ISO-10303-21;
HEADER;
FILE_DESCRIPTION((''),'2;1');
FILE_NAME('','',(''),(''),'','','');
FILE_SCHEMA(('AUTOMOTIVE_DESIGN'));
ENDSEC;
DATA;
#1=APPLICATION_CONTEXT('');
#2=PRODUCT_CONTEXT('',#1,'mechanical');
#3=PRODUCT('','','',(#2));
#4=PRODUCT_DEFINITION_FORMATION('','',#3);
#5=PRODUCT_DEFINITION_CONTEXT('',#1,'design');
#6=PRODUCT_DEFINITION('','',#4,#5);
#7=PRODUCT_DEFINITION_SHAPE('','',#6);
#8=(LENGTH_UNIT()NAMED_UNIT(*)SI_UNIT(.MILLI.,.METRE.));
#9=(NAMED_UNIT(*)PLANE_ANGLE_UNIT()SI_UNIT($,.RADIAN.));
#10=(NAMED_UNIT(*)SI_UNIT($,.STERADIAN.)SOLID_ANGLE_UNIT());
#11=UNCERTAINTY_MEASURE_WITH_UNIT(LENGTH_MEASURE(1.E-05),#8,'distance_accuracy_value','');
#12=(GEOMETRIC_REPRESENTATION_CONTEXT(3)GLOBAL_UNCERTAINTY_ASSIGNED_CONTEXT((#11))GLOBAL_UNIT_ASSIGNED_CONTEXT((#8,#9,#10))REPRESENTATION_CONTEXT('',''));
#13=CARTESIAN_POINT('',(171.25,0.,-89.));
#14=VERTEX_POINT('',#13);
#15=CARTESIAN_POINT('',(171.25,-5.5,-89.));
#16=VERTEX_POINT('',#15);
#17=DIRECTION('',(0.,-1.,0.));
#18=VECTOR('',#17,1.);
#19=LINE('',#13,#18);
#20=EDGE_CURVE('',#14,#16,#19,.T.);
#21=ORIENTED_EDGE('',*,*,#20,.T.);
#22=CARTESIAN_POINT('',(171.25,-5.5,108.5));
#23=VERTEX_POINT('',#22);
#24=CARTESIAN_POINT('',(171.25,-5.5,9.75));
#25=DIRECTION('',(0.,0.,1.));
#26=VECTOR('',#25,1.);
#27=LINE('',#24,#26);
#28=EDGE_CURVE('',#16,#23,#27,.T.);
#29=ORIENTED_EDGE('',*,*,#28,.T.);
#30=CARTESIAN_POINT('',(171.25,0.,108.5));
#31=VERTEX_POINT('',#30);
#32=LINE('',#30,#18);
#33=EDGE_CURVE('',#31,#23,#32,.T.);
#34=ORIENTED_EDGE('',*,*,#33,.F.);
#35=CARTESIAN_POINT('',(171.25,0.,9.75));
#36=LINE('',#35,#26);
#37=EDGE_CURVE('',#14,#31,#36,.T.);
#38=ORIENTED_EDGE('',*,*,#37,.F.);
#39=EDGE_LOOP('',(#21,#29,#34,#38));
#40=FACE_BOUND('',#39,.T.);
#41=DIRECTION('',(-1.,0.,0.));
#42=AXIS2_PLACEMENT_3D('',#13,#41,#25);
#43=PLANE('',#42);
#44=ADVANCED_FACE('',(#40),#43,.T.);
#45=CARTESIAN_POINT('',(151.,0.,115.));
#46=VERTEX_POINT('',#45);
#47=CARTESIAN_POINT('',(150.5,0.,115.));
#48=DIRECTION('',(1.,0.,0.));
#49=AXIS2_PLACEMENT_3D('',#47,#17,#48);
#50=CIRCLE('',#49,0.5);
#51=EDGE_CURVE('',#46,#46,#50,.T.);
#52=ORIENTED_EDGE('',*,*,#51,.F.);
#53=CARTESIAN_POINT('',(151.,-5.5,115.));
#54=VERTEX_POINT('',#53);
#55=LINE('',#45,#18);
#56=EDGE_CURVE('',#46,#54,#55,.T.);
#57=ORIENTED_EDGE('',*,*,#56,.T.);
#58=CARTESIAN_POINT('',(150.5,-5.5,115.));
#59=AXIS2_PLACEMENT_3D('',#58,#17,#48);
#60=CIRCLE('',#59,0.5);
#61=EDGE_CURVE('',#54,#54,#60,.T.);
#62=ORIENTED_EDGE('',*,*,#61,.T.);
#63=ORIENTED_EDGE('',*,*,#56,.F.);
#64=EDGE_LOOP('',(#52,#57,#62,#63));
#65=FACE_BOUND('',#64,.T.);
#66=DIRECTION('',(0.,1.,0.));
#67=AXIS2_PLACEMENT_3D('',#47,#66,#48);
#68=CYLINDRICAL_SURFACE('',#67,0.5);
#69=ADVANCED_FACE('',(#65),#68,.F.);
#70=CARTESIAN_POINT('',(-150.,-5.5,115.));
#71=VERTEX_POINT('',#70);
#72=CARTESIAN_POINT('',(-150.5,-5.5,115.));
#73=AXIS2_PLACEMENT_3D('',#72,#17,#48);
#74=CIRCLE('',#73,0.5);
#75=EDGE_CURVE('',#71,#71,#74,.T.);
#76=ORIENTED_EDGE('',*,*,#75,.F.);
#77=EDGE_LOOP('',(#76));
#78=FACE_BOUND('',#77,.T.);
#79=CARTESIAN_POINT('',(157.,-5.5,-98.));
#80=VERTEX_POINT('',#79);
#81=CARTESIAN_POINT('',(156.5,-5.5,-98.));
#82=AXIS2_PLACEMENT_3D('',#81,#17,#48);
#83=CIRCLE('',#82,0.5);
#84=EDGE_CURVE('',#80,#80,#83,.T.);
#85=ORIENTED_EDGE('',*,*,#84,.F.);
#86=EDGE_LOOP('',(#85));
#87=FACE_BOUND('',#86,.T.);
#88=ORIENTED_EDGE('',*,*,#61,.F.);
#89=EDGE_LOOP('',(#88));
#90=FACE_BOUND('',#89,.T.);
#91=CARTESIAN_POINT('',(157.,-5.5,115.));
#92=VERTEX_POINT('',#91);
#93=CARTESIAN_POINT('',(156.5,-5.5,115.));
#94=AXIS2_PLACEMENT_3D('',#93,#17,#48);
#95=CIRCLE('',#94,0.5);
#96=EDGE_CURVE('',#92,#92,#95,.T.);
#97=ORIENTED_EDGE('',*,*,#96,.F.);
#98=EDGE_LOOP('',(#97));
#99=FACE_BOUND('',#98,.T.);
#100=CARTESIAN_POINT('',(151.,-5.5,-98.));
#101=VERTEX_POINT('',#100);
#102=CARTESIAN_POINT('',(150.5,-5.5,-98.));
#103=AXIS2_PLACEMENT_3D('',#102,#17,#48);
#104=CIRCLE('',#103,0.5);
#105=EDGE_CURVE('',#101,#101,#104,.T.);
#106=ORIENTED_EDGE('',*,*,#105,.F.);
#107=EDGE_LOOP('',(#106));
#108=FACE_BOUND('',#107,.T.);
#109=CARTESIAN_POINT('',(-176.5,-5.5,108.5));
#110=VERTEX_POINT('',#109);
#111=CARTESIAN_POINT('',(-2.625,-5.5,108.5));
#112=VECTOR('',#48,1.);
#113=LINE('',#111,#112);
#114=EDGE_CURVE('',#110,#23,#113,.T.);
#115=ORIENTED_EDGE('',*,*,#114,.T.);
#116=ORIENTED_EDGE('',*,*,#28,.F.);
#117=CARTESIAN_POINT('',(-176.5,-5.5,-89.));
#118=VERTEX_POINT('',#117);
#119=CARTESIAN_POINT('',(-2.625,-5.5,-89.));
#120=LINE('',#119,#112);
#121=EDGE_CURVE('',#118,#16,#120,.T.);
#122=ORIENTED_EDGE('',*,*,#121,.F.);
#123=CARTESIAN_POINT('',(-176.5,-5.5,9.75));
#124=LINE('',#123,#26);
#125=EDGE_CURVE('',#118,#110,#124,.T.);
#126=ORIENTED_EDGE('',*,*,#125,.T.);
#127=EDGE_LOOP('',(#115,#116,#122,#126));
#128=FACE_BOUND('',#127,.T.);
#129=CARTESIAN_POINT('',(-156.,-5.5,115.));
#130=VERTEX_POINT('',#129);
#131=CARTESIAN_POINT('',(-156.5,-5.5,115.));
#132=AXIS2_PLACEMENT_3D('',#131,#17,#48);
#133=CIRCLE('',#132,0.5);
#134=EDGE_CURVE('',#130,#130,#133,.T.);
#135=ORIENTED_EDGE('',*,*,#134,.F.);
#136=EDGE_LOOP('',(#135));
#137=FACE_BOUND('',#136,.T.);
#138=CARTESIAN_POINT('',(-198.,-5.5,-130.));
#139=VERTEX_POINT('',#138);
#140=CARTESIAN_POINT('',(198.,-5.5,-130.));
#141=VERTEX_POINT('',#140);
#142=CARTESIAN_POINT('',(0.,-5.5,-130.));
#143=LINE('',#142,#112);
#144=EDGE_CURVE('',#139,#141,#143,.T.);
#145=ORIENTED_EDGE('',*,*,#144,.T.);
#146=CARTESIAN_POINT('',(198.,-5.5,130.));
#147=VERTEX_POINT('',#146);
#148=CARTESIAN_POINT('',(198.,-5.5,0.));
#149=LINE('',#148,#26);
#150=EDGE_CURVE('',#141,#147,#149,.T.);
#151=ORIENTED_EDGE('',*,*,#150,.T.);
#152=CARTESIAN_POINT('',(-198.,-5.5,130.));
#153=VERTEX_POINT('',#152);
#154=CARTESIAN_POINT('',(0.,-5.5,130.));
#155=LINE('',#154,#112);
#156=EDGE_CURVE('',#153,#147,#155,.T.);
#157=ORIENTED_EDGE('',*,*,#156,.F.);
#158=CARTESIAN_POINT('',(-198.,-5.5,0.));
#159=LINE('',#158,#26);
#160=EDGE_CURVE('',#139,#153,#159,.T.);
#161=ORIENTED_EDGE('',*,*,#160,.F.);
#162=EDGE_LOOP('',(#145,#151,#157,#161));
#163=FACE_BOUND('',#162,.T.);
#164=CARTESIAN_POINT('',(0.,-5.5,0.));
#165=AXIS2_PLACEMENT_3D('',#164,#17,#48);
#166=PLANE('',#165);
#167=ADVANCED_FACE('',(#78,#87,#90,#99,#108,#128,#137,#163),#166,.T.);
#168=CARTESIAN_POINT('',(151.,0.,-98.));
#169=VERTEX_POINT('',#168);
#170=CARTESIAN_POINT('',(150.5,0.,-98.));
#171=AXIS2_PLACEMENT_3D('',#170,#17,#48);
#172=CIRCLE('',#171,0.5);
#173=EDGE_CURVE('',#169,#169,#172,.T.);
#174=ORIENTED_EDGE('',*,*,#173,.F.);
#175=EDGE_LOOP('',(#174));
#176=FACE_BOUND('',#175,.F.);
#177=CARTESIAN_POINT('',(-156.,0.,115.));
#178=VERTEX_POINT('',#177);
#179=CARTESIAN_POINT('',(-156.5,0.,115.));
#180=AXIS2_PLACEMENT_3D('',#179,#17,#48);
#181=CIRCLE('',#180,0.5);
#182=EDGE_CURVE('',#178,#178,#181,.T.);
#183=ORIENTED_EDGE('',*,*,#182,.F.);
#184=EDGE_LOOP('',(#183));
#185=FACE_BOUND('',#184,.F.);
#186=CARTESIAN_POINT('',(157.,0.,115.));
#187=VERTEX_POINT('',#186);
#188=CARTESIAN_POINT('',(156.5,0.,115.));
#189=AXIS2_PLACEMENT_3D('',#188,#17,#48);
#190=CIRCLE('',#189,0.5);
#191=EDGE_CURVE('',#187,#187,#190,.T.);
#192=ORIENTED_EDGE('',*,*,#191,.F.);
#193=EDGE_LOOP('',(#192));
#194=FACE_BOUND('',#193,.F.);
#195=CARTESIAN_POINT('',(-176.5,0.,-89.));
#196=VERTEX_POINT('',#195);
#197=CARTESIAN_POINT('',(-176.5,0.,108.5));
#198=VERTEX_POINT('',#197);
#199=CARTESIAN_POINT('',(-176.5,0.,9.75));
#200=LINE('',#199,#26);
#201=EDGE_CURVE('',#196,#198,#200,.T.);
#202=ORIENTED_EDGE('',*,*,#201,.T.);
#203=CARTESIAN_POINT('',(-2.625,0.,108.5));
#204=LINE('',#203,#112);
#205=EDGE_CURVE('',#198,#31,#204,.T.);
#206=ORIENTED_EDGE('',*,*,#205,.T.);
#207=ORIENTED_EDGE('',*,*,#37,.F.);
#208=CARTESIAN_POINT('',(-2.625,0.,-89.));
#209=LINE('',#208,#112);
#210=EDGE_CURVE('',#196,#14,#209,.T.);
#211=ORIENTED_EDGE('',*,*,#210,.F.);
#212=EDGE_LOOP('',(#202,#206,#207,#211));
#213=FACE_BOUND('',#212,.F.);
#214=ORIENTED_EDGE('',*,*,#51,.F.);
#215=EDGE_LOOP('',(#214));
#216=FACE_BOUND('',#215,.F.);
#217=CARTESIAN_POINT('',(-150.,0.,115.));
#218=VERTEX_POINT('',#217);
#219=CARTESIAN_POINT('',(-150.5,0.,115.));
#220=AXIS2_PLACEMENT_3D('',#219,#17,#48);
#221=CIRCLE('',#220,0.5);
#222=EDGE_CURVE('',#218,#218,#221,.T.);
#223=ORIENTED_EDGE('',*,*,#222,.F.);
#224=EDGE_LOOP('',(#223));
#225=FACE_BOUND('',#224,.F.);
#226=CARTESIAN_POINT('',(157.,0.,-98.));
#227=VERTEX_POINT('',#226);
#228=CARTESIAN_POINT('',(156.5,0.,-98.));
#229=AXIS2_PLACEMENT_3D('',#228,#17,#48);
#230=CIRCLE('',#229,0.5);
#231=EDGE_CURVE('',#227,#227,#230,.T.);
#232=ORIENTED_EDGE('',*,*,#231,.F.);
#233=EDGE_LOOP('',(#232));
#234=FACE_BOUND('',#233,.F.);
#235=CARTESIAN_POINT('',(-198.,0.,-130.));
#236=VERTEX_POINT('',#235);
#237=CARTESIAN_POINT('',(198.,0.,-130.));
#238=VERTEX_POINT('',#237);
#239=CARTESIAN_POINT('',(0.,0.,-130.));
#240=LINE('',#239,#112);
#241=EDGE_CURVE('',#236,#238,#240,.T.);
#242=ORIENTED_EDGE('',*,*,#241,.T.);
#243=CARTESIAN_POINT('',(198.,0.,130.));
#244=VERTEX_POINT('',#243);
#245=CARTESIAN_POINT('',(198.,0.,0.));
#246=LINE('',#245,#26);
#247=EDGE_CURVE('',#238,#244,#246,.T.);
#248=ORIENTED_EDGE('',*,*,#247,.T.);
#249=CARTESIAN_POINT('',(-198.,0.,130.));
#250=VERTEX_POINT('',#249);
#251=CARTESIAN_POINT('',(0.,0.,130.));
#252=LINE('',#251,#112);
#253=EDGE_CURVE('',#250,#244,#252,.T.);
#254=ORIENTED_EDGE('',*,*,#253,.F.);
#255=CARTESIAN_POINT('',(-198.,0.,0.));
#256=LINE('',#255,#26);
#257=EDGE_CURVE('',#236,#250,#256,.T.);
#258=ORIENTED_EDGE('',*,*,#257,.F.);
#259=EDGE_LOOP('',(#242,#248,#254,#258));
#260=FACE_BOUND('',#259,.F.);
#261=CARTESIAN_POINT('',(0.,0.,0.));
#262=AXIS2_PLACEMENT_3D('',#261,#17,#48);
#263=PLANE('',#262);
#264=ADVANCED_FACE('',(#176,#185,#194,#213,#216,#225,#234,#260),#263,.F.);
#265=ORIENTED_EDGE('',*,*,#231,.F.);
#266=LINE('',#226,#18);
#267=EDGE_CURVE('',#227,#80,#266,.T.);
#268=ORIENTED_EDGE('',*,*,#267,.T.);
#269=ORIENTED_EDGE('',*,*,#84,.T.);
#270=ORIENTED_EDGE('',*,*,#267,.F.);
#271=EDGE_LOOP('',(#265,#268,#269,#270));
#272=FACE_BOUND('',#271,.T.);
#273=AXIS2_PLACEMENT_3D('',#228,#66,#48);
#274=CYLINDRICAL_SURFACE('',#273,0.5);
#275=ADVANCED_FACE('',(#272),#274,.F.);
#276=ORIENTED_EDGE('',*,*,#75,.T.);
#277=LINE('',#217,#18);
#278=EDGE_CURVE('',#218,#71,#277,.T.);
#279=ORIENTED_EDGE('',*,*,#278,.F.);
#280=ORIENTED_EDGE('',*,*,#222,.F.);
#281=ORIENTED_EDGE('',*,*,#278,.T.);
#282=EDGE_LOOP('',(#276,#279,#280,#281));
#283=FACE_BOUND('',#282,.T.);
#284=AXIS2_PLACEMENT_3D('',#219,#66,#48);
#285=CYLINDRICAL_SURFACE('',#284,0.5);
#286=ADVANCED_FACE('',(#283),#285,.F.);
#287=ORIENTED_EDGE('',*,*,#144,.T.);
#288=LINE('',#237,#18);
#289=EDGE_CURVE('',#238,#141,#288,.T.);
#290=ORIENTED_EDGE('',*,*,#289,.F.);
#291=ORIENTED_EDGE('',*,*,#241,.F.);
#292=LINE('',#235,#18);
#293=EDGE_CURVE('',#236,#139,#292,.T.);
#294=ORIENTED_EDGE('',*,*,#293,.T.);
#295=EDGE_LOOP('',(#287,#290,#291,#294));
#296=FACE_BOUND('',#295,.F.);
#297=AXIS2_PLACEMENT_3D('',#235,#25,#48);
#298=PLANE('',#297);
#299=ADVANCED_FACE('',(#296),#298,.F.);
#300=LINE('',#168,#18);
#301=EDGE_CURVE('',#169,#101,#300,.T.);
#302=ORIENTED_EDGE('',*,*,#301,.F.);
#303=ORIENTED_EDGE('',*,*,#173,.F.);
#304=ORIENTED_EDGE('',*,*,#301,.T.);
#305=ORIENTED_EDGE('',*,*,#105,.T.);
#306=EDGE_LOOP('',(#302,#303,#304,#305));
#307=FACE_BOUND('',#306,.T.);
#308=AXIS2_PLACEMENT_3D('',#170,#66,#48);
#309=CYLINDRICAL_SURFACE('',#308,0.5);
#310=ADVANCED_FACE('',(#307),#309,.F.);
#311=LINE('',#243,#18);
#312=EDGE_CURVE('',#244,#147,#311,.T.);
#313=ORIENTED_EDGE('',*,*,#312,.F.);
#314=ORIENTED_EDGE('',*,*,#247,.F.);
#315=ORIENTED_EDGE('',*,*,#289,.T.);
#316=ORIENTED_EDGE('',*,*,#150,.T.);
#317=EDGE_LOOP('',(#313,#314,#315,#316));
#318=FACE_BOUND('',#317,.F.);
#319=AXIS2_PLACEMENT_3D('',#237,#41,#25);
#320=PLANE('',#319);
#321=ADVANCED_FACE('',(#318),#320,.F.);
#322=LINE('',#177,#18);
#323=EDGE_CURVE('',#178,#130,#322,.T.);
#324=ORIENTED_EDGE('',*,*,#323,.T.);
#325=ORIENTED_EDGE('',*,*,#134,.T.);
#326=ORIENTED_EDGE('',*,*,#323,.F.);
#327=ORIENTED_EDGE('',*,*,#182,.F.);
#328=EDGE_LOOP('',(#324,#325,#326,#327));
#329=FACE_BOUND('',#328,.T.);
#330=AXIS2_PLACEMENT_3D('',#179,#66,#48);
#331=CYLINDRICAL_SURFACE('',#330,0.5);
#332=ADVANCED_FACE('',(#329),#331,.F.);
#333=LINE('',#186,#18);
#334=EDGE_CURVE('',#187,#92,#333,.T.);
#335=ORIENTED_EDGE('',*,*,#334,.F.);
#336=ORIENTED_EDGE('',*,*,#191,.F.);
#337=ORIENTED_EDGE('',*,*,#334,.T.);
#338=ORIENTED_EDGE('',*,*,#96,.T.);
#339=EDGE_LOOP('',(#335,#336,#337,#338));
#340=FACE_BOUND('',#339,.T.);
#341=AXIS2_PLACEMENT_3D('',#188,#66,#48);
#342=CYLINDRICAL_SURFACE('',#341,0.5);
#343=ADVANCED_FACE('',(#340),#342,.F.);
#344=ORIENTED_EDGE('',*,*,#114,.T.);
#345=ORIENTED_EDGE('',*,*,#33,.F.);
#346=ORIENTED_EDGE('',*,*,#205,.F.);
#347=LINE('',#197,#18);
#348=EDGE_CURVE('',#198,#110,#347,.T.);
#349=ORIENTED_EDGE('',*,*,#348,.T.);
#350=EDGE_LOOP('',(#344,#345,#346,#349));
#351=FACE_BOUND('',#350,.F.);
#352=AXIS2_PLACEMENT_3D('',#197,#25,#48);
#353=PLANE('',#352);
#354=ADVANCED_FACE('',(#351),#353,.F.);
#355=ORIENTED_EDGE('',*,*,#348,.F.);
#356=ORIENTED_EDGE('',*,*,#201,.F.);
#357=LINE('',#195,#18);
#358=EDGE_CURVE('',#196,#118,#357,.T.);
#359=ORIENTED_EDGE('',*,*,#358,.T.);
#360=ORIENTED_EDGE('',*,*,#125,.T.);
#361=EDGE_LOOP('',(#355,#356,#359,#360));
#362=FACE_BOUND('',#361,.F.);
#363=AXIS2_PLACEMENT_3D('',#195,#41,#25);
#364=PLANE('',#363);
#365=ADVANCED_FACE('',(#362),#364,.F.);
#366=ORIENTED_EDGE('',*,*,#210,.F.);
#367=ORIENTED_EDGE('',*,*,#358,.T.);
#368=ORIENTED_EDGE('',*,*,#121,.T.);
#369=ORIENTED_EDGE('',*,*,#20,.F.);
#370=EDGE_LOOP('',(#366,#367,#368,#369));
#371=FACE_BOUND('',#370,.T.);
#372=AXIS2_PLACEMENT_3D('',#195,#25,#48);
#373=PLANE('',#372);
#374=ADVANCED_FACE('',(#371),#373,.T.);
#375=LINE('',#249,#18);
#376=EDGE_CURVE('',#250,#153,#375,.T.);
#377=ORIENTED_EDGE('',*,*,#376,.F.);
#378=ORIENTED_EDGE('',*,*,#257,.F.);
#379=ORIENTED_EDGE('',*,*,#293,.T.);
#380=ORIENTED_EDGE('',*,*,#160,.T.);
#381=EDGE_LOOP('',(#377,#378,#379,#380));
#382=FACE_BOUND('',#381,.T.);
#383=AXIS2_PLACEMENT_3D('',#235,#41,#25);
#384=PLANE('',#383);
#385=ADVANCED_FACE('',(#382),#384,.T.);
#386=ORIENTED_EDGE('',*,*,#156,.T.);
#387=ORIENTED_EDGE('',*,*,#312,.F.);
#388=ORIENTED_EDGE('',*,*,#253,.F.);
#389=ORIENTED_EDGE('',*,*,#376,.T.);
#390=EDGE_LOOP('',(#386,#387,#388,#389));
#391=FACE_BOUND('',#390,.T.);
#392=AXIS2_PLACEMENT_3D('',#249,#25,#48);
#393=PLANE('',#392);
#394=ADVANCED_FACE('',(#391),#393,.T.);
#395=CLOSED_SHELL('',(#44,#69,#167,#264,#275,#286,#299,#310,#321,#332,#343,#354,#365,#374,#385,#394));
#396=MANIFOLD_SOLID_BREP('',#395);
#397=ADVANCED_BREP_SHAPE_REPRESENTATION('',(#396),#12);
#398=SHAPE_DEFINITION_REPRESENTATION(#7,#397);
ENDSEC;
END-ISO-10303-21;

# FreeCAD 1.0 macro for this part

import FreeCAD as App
import Part
import Sketcher
from FreeCAD import Vector
Q = App.Units.Quantity

doc = App.newDocument("Part")
params = doc.addObject("Spreadsheet::Sheet", "Params")
for row, (alias, value) in enumerate([
    ("sketch1_diameter", "1 mm"),
    ("sketch1_width", "396 mm"),
    ("sketch1_height", "260 mm"),
    ("sketch1_height2", "197.5 mm"),
    ("sketch1_width2", "347.75 mm"),
    ("pad1_length", "5.5 mm"),
], start=1):
    params.set(f"A{row}", alias)
    params.set(f"B{row}", "=" + value)
    params.setAlias(f"B{row}", alias)

body = doc.addObject("PartDesign::Body", "Body")

# Sketch on XZ plane
sketch1 = body.newObject("Sketcher::SketchObject", "Sketch")
sketch1.AttachmentSupport = (doc.getObject("XZ_Plane"), [""])
sketch1.MapMode = "FlatFace"
sketch1.addGeometry(Part.LineSegment(Vector(-198, 130, 0), Vector(-198, -130, 0)), False)
sketch1.addGeometry(Part.LineSegment(Vector(-198, -130, 0), Vector(198, -130, 0)), False)
sketch1.addGeometry(Part.LineSegment(Vector(198, -130, 0), Vector(198, 130, 0)), False)
sketch1.addGeometry(Part.LineSegment(Vector(198, 130, 0), Vector(-198, 130, 0)), False)
sketch1.addGeometry(Part.Circle(Vector(150.5, -98, 0), Vector(0, 0, 1), 0.5), False)
sketch1.addGeometry(Part.Circle(Vector(156.5, -98, 0), Vector(0, 0, 1), 0.5), False)
sketch1.addGeometry(Part.Circle(Vector(-156.5, 115, 0), Vector(0, 0, 1), 0.5), False)
sketch1.addGeometry(Part.Circle(Vector(-150.5, 115, 0), Vector(0, 0, 1), 0.5), False)
sketch1.addGeometry(Part.LineSegment(Vector(171.2, -89, 0), Vector(-176.5, -89, 0)), False)
sketch1.addGeometry(Part.LineSegment(Vector(-176.5, -89, 0), Vector(-176.5, 108.5, 0)), False)
sketch1.addGeometry(Part.LineSegment(Vector(-176.5, 108.5, 0), Vector(171.2, 108.5, 0)), False)
sketch1.addGeometry(Part.LineSegment(Vector(171.2, 108.5, 0), Vector(171.2, -89, 0)), False)
sketch1.addGeometry(Part.Circle(Vector(150.5, 115, 0), Vector(0, 0, 1), 0.5), False)
sketch1.addGeometry(Part.Circle(Vector(156.5, 115, 0), Vector(0, 0, 1), 0.5), False)
sketch1.addConstraint(Sketcher.Constraint("Coincident", 0, 2, 1, 1))
sketch1.addConstraint(Sketcher.Constraint("Coincident", 1, 2, 2, 1))
sketch1.addConstraint(Sketcher.Constraint("Coincident", 2, 2, 3, 1))
sketch1.addConstraint(Sketcher.Constraint("Coincident", 3, 2, 0, 1))
sketch1.addConstraint(Sketcher.Constraint("Coincident", 8, 2, 9, 1))
sketch1.addConstraint(Sketcher.Constraint("Coincident", 9, 2, 10, 1))
sketch1.addConstraint(Sketcher.Constraint("Coincident", 10, 2, 11, 1))
sketch1.addConstraint(Sketcher.Constraint("Coincident", 11, 2, 8, 1))
sketch1.addConstraint(Sketcher.Constraint("Vertical", 0))
sketch1.addConstraint(Sketcher.Constraint("Horizontal", 1))
sketch1.addConstraint(Sketcher.Constraint("Vertical", 2))
sketch1.addConstraint(Sketcher.Constraint("Horizontal", 3))
sketch1.addConstraint(Sketcher.Constraint("Horizontal", 8))
sketch1.addConstraint(Sketcher.Constraint("Vertical", 9))
sketch1.addConstraint(Sketcher.Constraint("Horizontal", 10))
sketch1.addConstraint(Sketcher.Constraint("Vertical", 11))
sketch1.addConstraint(Sketcher.Constraint("Equal", 4, 5))
sketch1.addConstraint(Sketcher.Constraint("Equal", 5, 6))
sketch1.addConstraint(Sketcher.Constraint("Equal", 6, 7))
sketch1.addConstraint(Sketcher.Constraint("Equal", 7, 12))
sketch1.addConstraint(Sketcher.Constraint("Equal", 12, 13))
sketch1.addConstraint(Sketcher.Constraint("Symmetric", 0, 2, 2, 2, -1, 1))
sketch1.addConstraint(Sketcher.Constraint("Symmetric", 7, 3, 12, 3, -2))
sketch1.addConstraint(Sketcher.Constraint("Symmetric", 6, 3, 13, 3, -2))
sketch1.addConstraint(Sketcher.Constraint("Horizontal", 4, 3, 5, 3))
sketch1.addConstraint(Sketcher.Constraint("Horizontal", 6, 3, 7, 3))
sketch1.addConstraint(Sketcher.Constraint("Vertical", 4, 3, 12, 3))
sketch1.addConstraint(Sketcher.Constraint("Vertical", 5, 3, 13, 3))
sketch1.addConstraint(Sketcher.Constraint("Diameter", 4, Q("1 mm")))
sketch1.addConstraint(Sketcher.Constraint("DistanceX", 1, 1, 1, 2, Q("396 mm")))
sketch1.addConstraint(Sketcher.Constraint("DistanceY", 0, 2, 0, 1, Q("260 mm")))
sketch1.addConstraint(Sketcher.Constraint("DistanceY", 9, 1, 9, 2, Q("197.5 mm")))
sketch1.addConstraint(Sketcher.Constraint("DistanceY", 4, 3, -1, 1, Q("98 mm")))
sketch1.addConstraint(Sketcher.Constraint("DistanceY", -1, 1, 6, 3, Q("115 mm")))
sketch1.addConstraint(Sketcher.Constraint("DistanceY", 8, 2, -1, 1, Q("89 mm")))
sketch1.addConstraint(Sketcher.Constraint("DistanceX", 4, 3, 5, 3, Q("6 mm")))
sketch1.addConstraint(Sketcher.Constraint("DistanceX", 6, 3, 4, 3, Q("307 mm")))
sketch1.addConstraint(Sketcher.Constraint("DistanceX", 8, 2, 6, 3, Q("20 mm")))
sketch1.addConstraint(Sketcher.Constraint("DistanceX", 8, 2, 8, 1, Q("347.75 mm")))
sketch1.setExpression("Constraints[28]", "Params.sketch1_diameter")
sketch1.setExpression("Constraints[29]", "Params.sketch1_width")
sketch1.setExpression("Constraints[30]", "Params.sketch1_height")
sketch1.setExpression("Constraints[31]", "Params.sketch1_height2")
sketch1.setExpression("Constraints[38]", "Params.sketch1_width2")
pad1 = body.newObject("PartDesign::Pad", "Pad")
pad1.Profile = sketch1
pad1.setExpression("Length", "Params.pad1_length")

doc.recompute()
